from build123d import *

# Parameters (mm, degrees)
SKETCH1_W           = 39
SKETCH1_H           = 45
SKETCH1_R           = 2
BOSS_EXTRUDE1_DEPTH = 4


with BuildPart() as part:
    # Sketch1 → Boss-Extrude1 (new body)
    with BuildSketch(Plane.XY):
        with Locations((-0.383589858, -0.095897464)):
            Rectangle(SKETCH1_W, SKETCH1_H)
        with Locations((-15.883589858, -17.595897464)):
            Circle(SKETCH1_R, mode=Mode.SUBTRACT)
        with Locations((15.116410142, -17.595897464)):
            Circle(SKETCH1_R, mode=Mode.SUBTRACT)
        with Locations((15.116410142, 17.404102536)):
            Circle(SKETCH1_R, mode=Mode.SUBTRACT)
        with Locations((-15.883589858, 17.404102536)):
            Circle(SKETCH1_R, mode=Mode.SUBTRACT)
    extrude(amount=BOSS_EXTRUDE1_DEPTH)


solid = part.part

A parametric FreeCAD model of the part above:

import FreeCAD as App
import Part
import Sketcher
from FreeCAD import Vector


def add_polygon(sketch, points):
    """Adds a closed chain of lines whose ends are joined by coincident constraints."""
    first, n = sketch.GeometryCount, len(points)
    for a, b in zip(points, points[1:] + points[:1]):
        sketch.addGeometry(Part.LineSegment(App.Vector(*a, 0), App.Vector(*b, 0)), False)
    for i in range(n):
        sketch.addConstraint(Sketcher.Constraint("Coincident", first + i, 2, first + (i + 1) % n, 1))

doc = App.newDocument("Part")
body = doc.addObject("PartDesign::Body", "Body")

sketch1 = body.newObject("Sketcher::SketchObject", "Sketch")
sketch1.AttachmentSupport = (doc.getObject("XY_Plane"), [""])
sketch1.MapMode = "FlatFace"
add_polygon(sketch1, [(-19.9, 22.4), (-19.9, -22.6), (19.1, -22.6), (19.1, 22.4)])
sketch1.addGeometry(Part.Circle(Vector(-15.9, -17.6, 0), Vector(0, 0, 1), 2), False)
sketch1.addGeometry(Part.Circle(Vector(15.1, -17.6, 0), Vector(0, 0, 1), 2), False)
sketch1.addGeometry(Part.Circle(Vector(-15.9, 17.4, 0), Vector(0, 0, 1), 2), False)
sketch1.addGeometry(Part.Circle(Vector(15.1, 17.4, 0), Vector(0, 0, 1), 2), False)
sketch1.addConstraint([
    Sketcher.Constraint("Vertical", 0),
    Sketcher.Constraint("Horizontal", 1),
    Sketcher.Constraint("Vertical", 2),
    Sketcher.Constraint("Horizontal", 3),
    Sketcher.Constraint("Equal", 4, 5),
    Sketcher.Constraint("Equal", 5, 6),
    Sketcher.Constraint("Equal", 6, 7),
    Sketcher.Constraint("Horizontal", 4, 3, 5, 3),
    Sketcher.Constraint("Horizontal", 6, 3, 7, 3),
    Sketcher.Constraint("Vertical", 4, 3, 6, 3),
    Sketcher.Constraint("Vertical", 5, 3, 7, 3),
    Sketcher.Constraint("Diameter", 4, 4.0),
    Sketcher.Constraint("DistanceX", 1, 1, 1, 2, 39.0),
    Sketcher.Constraint("DistanceY", 0, 2, 0, 1, 45.0),
    Sketcher.Constraint("DistanceX", 4, 3, 5, 3, 31.0),
    Sketcher.Constraint("DistanceY", 4, 3, 6, 3, 35.0),
    Sketcher.Constraint("DistanceX", 0, 2, 4, 3, 4.0),
    Sketcher.Constraint("DistanceY", 0, 2, 4, 3, 5.0),
    Sketcher.Constraint("DistanceX", 4, 3, -1, 1, 15.88359),
    Sketcher.Constraint("DistanceY", 4, 3, -1, 1, 17.595897),
])
pad1 = body.newObject("PartDesign::Pad", "Pad")
pad1.Profile = sketch1
pad1.Length = 4

doc.recompute()
